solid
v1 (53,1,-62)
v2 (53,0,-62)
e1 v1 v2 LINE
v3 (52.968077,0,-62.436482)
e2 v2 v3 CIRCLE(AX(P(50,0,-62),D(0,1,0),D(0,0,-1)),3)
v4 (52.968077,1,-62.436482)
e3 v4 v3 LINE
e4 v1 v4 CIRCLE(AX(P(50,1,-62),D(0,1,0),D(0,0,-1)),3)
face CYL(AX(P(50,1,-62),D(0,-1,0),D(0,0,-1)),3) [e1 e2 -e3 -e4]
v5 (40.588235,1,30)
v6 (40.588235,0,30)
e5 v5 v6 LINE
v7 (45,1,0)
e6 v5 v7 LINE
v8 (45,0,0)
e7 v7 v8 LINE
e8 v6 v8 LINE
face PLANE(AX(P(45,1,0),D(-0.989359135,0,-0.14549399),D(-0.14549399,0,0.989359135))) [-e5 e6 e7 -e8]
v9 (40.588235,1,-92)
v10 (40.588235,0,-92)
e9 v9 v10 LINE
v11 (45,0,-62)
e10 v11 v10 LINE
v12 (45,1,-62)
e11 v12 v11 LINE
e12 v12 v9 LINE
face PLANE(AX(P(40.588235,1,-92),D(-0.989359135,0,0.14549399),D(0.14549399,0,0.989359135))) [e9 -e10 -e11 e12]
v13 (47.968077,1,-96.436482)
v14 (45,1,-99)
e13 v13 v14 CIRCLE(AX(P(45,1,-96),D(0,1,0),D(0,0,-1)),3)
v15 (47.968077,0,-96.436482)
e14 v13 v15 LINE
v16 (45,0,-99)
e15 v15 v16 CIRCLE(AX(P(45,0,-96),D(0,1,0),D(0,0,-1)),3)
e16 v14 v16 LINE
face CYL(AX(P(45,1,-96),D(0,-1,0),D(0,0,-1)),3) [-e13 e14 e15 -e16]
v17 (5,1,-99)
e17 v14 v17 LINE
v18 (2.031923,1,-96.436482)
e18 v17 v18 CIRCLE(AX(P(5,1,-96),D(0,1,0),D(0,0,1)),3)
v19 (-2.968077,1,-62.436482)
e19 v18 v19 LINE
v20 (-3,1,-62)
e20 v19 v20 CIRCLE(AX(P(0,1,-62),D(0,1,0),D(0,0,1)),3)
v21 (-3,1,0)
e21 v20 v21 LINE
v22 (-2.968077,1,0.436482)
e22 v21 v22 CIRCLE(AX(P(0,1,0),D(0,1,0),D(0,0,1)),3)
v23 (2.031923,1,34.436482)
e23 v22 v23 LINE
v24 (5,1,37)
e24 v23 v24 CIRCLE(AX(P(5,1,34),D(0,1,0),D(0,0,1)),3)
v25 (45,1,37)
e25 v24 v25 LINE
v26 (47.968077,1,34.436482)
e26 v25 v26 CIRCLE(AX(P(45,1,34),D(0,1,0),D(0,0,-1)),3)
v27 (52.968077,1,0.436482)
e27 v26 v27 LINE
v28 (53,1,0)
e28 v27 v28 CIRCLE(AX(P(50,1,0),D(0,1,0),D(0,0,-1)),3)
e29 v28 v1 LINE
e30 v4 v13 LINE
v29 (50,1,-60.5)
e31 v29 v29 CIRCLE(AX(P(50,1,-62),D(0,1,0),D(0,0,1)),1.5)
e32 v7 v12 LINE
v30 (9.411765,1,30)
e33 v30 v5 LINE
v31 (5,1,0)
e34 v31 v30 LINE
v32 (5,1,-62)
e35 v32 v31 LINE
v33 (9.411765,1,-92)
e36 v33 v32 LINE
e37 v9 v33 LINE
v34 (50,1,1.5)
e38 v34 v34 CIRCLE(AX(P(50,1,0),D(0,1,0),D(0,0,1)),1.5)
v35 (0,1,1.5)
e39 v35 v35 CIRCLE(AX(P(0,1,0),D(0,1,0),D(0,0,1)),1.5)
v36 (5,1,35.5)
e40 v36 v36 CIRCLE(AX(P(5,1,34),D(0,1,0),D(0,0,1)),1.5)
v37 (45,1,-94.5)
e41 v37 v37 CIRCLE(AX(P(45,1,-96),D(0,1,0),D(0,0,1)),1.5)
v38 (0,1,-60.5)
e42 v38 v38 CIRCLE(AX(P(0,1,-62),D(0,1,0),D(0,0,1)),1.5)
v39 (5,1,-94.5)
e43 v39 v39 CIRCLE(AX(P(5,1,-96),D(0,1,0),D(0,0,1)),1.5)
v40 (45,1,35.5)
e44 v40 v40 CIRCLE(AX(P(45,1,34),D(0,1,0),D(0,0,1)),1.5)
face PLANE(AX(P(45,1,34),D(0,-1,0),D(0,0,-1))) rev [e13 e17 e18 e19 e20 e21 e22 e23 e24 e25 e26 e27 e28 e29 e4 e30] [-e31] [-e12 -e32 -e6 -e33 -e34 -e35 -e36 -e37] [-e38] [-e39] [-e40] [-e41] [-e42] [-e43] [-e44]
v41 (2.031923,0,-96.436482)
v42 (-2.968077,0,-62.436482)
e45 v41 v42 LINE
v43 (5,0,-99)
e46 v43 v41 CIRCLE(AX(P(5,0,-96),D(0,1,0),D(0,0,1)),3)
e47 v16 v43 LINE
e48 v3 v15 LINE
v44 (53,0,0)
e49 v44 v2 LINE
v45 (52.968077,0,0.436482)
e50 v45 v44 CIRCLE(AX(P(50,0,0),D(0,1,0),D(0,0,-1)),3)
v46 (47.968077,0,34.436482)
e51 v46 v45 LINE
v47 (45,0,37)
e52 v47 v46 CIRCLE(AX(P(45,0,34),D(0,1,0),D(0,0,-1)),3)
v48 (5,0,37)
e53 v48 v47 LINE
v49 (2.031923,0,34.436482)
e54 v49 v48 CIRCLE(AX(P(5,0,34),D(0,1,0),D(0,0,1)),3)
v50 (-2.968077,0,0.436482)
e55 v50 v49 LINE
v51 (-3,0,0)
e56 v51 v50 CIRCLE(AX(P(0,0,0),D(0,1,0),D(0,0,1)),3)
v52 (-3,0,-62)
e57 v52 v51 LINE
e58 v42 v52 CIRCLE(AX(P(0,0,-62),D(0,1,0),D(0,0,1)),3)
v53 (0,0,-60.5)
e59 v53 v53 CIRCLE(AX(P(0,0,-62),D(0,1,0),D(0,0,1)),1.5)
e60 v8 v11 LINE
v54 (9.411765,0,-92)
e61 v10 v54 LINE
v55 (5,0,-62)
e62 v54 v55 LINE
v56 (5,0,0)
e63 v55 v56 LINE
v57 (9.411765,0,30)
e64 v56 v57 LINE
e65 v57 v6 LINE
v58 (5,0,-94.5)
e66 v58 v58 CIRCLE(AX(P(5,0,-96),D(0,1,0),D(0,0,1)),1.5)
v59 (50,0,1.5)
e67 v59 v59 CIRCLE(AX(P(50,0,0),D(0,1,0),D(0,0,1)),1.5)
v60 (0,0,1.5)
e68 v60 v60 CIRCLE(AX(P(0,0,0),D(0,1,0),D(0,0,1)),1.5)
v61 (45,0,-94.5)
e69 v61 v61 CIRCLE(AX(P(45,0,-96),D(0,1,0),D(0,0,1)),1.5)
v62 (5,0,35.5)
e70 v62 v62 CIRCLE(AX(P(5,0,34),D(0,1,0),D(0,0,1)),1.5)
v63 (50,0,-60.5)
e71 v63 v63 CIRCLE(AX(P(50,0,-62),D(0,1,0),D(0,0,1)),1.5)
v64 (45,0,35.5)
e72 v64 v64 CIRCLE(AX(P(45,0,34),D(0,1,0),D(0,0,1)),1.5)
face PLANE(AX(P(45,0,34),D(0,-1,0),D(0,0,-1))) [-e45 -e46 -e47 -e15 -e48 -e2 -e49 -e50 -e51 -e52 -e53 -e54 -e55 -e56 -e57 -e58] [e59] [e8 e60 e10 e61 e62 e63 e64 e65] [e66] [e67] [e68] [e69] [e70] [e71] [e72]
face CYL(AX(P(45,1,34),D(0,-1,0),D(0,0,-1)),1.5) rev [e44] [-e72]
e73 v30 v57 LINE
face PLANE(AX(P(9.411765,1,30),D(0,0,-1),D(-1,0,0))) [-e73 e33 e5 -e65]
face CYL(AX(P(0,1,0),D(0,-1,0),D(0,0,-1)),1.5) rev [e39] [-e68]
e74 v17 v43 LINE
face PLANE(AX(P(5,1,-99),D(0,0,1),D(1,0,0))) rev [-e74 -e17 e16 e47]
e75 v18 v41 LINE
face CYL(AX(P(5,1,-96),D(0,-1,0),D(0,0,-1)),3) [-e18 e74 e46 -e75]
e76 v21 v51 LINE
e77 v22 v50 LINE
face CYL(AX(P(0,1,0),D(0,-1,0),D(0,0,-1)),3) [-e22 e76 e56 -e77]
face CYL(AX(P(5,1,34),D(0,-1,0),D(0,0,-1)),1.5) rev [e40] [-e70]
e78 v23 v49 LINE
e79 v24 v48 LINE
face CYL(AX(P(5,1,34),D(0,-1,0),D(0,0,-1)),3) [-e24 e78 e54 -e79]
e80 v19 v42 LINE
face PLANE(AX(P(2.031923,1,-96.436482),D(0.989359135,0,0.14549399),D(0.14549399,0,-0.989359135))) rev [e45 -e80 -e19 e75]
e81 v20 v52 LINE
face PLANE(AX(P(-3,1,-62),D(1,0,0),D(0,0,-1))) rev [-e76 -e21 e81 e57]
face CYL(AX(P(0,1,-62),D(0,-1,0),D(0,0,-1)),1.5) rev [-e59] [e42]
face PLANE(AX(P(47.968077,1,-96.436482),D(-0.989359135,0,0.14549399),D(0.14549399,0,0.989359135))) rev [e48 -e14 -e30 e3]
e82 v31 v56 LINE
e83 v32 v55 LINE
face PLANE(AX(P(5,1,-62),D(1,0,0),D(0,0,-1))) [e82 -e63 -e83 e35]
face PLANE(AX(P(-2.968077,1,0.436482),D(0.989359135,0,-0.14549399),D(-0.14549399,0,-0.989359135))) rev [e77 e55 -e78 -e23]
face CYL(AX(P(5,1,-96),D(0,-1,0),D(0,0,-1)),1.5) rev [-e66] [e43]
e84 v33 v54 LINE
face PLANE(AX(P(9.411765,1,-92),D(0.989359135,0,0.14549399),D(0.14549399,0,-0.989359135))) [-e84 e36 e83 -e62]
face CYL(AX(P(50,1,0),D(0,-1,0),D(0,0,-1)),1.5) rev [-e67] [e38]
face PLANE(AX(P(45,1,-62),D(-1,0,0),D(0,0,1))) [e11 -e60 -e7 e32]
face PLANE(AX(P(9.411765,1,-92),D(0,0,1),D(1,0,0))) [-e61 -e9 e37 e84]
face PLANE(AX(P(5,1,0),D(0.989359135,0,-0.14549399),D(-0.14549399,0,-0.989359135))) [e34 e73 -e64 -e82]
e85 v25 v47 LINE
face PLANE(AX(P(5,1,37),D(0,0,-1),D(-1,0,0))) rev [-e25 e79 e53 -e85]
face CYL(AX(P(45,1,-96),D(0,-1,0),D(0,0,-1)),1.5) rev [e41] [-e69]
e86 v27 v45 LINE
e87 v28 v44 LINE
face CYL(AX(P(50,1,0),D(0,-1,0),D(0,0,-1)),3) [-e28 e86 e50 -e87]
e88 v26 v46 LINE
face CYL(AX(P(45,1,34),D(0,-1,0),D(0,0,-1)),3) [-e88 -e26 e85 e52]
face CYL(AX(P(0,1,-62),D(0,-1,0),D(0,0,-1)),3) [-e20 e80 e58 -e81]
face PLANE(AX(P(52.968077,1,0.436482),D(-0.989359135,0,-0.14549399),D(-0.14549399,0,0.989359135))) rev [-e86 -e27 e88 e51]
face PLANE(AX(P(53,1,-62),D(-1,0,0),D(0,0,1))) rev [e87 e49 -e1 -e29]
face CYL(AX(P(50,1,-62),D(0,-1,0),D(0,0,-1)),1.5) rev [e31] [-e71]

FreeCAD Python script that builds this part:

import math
import FreeCAD as App
import Part
import Sketcher
Q = App.Units.Quantity


def add_polygon(sketch, points):
    """Adds a closed chain of lines whose ends are joined by coincident constraints."""
    first, n = sketch.GeometryCount, len(points)
    for a, b in zip(points, points[1:] + points[:1]):
        sketch.addGeometry(Part.LineSegment(App.Vector(*a, 0), App.Vector(*b, 0)), False)
    for i in range(n):
        sketch.addConstraint(Sketcher.Constraint("Coincident", first + i, 2, first + (i + 1) % n, 1))

doc = App.newDocument("Part")
body = doc.addObject("PartDesign::Body", "Body")

sketch1 = body.newObject("Sketcher::SketchObject", "Sketch")
sketch1.AttachmentSupport = (doc.getObject("XZ_Plane"), [""])
sketch1.MapMode = "FlatFace"
sketch1.addGeometry(Part.LineSegment(App.Vector(45, -99, 0), App.Vector(5, -99, 0)), False)
sketch1.addGeometry(Part.ArcOfCircle(Part.Circle(App.Vector(5, -96, 0), App.Vector(0, 0, 1), 3), math.radians(-171.634114), math.radians(-90)), False)
sketch1.addGeometry(Part.LineSegment(App.Vector(2.031923, -96.436482, 0), App.Vector(-2.968077, -62.436482, 0)), False)
sketch1.addGeometry(Part.ArcOfCircle(Part.Circle(App.Vector(0, -62, 0), App.Vector(0, 0, 1), 3), math.radians(-180), math.radians(-171.634114)), False)
sketch1.addGeometry(Part.LineSegment(App.Vector(-3, -62, 0), App.Vector(-3, 0, 0)), False)
sketch1.addGeometry(Part.ArcOfCircle(Part.Circle(App.Vector(0, 0, 0), App.Vector(0, 0, 1), 3), math.radians(171.634114), math.radians(180)), False)
sketch1.addGeometry(Part.LineSegment(App.Vector(-2.968077, 0.436482, 0), App.Vector(2.031923, 34.436482, 0)), False)
sketch1.addGeometry(Part.ArcOfCircle(Part.Circle(App.Vector(5, 34, 0), App.Vector(0, 0, 1), 3), math.radians(90), math.radians(171.634114)), False)
sketch1.addGeometry(Part.LineSegment(App.Vector(5, 37, 0), App.Vector(45, 37, 0)), False)
sketch1.addGeometry(Part.ArcOfCircle(Part.Circle(App.Vector(45, 34, 0), App.Vector(0, 0, 1), 3), math.radians(8.365886), math.radians(90)), False)
sketch1.addGeometry(Part.LineSegment(App.Vector(47.968077, 34.436482, 0), App.Vector(52.968077, 0.436482, 0)), False)
sketch1.addGeometry(Part.ArcOfCircle(Part.Circle(App.Vector(50, 0, 0), App.Vector(0, 0, 1), 3), math.radians(0), math.radians(8.365886)), False)
sketch1.addGeometry(Part.LineSegment(App.Vector(53, 0, 0), App.Vector(53, -62, 0)), False)
sketch1.addGeometry(Part.ArcOfCircle(Part.Circle(App.Vector(50, -62, 0), App.Vector(0, 0, 1), 3), math.radians(-8.365886), math.radians(0)), False)
sketch1.addGeometry(Part.LineSegment(App.Vector(52.968077, -62.436482, 0), App.Vector(47.968077, -96.436482, 0)), False)
sketch1.addGeometry(Part.ArcOfCircle(Part.Circle(App.Vector(45, -96, 0), App.Vector(0, 0, 1), 3), math.radians(-90), math.radians(-8.365886)), False)
sketch1.addGeometry(Part.Circle(App.Vector(45, 34, 0), App.Vector(0, 0, 1), 1.5), False)
sketch1.addGeometry(Part.Circle(App.Vector(50, 0, 0), App.Vector(0, 0, 1), 1.5), False)
sketch1.addGeometry(Part.Circle(App.Vector(5, 34, 0), App.Vector(0, 0, 1), 1.5), False)
sketch1.addGeometry(Part.Circle(App.Vector(0, 0, 0), App.Vector(0, 0, 1), 1.5), False)
sketch1.addGeometry(Part.Circle(App.Vector(50, -62, 0), App.Vector(0, 0, 1), 1.5), False)
sketch1.addGeometry(Part.Circle(App.Vector(45, -96, 0), App.Vector(0, 0, 1), 1.5), False)
add_polygon(sketch1, [(9.411765, -92), (40.588235, -92), (45, -62), (45, 0), (40.588235, 30), (9.411765, 30), (5, 0), (5, -62)])
sketch1.addGeometry(Part.Circle(App.Vector(0, -62, 0), App.Vector(0, 0, 1), 1.5), False)
sketch1.addGeometry(Part.Circle(App.Vector(5, -96, 0), App.Vector(0, 0, 1), 1.5), False)
sketch1.addConstraint([
    Sketcher.Constraint("Tangent", 0, 2, 1, 2),
    Sketcher.Constraint("Tangent", 1, 1, 2, 1),
    Sketcher.Constraint("Tangent", 2, 2, 3, 2),
    Sketcher.Constraint("Tangent", 3, 1, 4, 1),
    Sketcher.Constraint("Tangent", 4, 2, 5, 2),
    Sketcher.Constraint("Tangent", 5, 1, 6, 1),
    Sketcher.Constraint("Tangent", 6, 2, 7, 2),
    Sketcher.Constraint("Tangent", 7, 1, 8, 1),
    Sketcher.Constraint("Tangent", 8, 2, 9, 2),
    Sketcher.Constraint("Tangent", 9, 1, 10, 1),
    Sketcher.Constraint("Tangent", 10, 2, 11, 2),
    Sketcher.Constraint("Tangent", 11, 1, 12, 1),
    Sketcher.Constraint("Tangent", 12, 2, 13, 2),
    Sketcher.Constraint("Tangent", 13, 1, 14, 1),
    Sketcher.Constraint("Tangent", 14, 2, 15, 2),
    Sketcher.Constraint("Tangent", 15, 1, 0, 1),
    Sketcher.Constraint("Horizontal", 0),
    Sketcher.Constraint("Vertical", 4),
    Sketcher.Constraint("Horizontal", 8),
    Sketcher.Constraint("Vertical", 12),
    Sketcher.Constraint("Horizontal", 22),
    Sketcher.Constraint("Vertical", 24),
    Sketcher.Constraint("Horizontal", 26),
    Sketcher.Constraint("Vertical", 28),
    Sketcher.Constraint("Coincident", 5, 3, -1, 1),
    Sketcher.Constraint("Coincident", 19, 3, -1, 1),
    Sketcher.Constraint("Coincident", 16, 3, 9, 3),
    Sketcher.Constraint("Coincident", 17, 3, 11, 3),
    Sketcher.Constraint("Coincident", 18, 3, 7, 3),
    Sketcher.Constraint("Coincident", 20, 3, 13, 3),
    Sketcher.Constraint("Coincident", 21, 3, 15, 3),
    Sketcher.Constraint("Coincident", 30, 3, 3, 3),
    Sketcher.Constraint("Coincident", 31, 3, 1, 3),
    Sketcher.Constraint("Equal", 1, 3),
    Sketcher.Constraint("Equal", 3, 5),
    Sketcher.Constraint("Equal", 5, 7),
    Sketcher.Constraint("Equal", 7, 9),
    Sketcher.Constraint("Equal", 9, 11),
    Sketcher.Constraint("Equal", 11, 13),
    Sketcher.Constraint("Equal", 13, 15),
    Sketcher.Constraint("Equal", 16, 17),
    Sketcher.Constraint("Equal", 17, 18),
    Sketcher.Constraint("Equal", 18, 19),
    Sketcher.Constraint("Equal", 19, 20),
    Sketcher.Constraint("Equal", 20, 21),
    Sketcher.Constraint("Equal", 21, 30),
    Sketcher.Constraint("Equal", 30, 31),
    Sketcher.Constraint("PointOnObject", 11, 3, -1),
    Sketcher.Constraint("PointOnObject", 24, 2, -1),
    Sketcher.Constraint("PointOnObject", 27, 2, -1),
    Sketcher.Constraint("Parallel", 2, 10),
    Sketcher.Constraint("Parallel", 6, 14),
    Sketcher.Constraint("Parallel", 14, 23),
    Sketcher.Constraint("Parallel", 10, 25),
    Sketcher.Constraint("Parallel", 23, 27),
    Sketcher.Constraint("Parallel", 25, 29),
    Sketcher.Constraint("Horizontal", 3, 3, 13, 3),
    Sketcher.Constraint("Horizontal", 6, 2, 9, 1),
    Sketcher.Constraint("Horizontal", 12, 2, 23, 2),
    Sketcher.Constraint("Horizontal", 23, 2, 28, 2),
    Sketcher.Constraint("Vertical", 1, 3, 7, 3),
    Sketcher.Constraint("Vertical", 15, 1, 23, 2),
    Sketcher.Constraint("Vertical", 22, 2, 25, 2),
    Sketcher.Constraint("Vertical", 7, 1, 27, 2),
    Sketcher.Constraint("Diameter", 16, Q("3 mm")),
    Sketcher.Constraint("Radius", 1, Q("3 mm")),
    Sketcher.Constraint("DistanceX", 0, 2, 0, 1, Q("40 mm")),
    Sketcher.Constraint("DistanceY", 4, 1, 4, 2, Q("62 mm")),
    Sketcher.Constraint("DistanceX", -1, 1, 1, 3, Q("5 mm")),
    Sketcher.Constraint("DistanceY", 1, 3, -1, 1, Q("96 mm")),
    Sketcher.Constraint("DistanceY", 22, 2, -1, 1, Q("92 mm")),
])
pad1 = body.newObject("PartDesign::Pad", "Pad")
pad1.Profile = sketch1
pad1.Length = 1
pad1.Reversed = True

doc.recompute()
